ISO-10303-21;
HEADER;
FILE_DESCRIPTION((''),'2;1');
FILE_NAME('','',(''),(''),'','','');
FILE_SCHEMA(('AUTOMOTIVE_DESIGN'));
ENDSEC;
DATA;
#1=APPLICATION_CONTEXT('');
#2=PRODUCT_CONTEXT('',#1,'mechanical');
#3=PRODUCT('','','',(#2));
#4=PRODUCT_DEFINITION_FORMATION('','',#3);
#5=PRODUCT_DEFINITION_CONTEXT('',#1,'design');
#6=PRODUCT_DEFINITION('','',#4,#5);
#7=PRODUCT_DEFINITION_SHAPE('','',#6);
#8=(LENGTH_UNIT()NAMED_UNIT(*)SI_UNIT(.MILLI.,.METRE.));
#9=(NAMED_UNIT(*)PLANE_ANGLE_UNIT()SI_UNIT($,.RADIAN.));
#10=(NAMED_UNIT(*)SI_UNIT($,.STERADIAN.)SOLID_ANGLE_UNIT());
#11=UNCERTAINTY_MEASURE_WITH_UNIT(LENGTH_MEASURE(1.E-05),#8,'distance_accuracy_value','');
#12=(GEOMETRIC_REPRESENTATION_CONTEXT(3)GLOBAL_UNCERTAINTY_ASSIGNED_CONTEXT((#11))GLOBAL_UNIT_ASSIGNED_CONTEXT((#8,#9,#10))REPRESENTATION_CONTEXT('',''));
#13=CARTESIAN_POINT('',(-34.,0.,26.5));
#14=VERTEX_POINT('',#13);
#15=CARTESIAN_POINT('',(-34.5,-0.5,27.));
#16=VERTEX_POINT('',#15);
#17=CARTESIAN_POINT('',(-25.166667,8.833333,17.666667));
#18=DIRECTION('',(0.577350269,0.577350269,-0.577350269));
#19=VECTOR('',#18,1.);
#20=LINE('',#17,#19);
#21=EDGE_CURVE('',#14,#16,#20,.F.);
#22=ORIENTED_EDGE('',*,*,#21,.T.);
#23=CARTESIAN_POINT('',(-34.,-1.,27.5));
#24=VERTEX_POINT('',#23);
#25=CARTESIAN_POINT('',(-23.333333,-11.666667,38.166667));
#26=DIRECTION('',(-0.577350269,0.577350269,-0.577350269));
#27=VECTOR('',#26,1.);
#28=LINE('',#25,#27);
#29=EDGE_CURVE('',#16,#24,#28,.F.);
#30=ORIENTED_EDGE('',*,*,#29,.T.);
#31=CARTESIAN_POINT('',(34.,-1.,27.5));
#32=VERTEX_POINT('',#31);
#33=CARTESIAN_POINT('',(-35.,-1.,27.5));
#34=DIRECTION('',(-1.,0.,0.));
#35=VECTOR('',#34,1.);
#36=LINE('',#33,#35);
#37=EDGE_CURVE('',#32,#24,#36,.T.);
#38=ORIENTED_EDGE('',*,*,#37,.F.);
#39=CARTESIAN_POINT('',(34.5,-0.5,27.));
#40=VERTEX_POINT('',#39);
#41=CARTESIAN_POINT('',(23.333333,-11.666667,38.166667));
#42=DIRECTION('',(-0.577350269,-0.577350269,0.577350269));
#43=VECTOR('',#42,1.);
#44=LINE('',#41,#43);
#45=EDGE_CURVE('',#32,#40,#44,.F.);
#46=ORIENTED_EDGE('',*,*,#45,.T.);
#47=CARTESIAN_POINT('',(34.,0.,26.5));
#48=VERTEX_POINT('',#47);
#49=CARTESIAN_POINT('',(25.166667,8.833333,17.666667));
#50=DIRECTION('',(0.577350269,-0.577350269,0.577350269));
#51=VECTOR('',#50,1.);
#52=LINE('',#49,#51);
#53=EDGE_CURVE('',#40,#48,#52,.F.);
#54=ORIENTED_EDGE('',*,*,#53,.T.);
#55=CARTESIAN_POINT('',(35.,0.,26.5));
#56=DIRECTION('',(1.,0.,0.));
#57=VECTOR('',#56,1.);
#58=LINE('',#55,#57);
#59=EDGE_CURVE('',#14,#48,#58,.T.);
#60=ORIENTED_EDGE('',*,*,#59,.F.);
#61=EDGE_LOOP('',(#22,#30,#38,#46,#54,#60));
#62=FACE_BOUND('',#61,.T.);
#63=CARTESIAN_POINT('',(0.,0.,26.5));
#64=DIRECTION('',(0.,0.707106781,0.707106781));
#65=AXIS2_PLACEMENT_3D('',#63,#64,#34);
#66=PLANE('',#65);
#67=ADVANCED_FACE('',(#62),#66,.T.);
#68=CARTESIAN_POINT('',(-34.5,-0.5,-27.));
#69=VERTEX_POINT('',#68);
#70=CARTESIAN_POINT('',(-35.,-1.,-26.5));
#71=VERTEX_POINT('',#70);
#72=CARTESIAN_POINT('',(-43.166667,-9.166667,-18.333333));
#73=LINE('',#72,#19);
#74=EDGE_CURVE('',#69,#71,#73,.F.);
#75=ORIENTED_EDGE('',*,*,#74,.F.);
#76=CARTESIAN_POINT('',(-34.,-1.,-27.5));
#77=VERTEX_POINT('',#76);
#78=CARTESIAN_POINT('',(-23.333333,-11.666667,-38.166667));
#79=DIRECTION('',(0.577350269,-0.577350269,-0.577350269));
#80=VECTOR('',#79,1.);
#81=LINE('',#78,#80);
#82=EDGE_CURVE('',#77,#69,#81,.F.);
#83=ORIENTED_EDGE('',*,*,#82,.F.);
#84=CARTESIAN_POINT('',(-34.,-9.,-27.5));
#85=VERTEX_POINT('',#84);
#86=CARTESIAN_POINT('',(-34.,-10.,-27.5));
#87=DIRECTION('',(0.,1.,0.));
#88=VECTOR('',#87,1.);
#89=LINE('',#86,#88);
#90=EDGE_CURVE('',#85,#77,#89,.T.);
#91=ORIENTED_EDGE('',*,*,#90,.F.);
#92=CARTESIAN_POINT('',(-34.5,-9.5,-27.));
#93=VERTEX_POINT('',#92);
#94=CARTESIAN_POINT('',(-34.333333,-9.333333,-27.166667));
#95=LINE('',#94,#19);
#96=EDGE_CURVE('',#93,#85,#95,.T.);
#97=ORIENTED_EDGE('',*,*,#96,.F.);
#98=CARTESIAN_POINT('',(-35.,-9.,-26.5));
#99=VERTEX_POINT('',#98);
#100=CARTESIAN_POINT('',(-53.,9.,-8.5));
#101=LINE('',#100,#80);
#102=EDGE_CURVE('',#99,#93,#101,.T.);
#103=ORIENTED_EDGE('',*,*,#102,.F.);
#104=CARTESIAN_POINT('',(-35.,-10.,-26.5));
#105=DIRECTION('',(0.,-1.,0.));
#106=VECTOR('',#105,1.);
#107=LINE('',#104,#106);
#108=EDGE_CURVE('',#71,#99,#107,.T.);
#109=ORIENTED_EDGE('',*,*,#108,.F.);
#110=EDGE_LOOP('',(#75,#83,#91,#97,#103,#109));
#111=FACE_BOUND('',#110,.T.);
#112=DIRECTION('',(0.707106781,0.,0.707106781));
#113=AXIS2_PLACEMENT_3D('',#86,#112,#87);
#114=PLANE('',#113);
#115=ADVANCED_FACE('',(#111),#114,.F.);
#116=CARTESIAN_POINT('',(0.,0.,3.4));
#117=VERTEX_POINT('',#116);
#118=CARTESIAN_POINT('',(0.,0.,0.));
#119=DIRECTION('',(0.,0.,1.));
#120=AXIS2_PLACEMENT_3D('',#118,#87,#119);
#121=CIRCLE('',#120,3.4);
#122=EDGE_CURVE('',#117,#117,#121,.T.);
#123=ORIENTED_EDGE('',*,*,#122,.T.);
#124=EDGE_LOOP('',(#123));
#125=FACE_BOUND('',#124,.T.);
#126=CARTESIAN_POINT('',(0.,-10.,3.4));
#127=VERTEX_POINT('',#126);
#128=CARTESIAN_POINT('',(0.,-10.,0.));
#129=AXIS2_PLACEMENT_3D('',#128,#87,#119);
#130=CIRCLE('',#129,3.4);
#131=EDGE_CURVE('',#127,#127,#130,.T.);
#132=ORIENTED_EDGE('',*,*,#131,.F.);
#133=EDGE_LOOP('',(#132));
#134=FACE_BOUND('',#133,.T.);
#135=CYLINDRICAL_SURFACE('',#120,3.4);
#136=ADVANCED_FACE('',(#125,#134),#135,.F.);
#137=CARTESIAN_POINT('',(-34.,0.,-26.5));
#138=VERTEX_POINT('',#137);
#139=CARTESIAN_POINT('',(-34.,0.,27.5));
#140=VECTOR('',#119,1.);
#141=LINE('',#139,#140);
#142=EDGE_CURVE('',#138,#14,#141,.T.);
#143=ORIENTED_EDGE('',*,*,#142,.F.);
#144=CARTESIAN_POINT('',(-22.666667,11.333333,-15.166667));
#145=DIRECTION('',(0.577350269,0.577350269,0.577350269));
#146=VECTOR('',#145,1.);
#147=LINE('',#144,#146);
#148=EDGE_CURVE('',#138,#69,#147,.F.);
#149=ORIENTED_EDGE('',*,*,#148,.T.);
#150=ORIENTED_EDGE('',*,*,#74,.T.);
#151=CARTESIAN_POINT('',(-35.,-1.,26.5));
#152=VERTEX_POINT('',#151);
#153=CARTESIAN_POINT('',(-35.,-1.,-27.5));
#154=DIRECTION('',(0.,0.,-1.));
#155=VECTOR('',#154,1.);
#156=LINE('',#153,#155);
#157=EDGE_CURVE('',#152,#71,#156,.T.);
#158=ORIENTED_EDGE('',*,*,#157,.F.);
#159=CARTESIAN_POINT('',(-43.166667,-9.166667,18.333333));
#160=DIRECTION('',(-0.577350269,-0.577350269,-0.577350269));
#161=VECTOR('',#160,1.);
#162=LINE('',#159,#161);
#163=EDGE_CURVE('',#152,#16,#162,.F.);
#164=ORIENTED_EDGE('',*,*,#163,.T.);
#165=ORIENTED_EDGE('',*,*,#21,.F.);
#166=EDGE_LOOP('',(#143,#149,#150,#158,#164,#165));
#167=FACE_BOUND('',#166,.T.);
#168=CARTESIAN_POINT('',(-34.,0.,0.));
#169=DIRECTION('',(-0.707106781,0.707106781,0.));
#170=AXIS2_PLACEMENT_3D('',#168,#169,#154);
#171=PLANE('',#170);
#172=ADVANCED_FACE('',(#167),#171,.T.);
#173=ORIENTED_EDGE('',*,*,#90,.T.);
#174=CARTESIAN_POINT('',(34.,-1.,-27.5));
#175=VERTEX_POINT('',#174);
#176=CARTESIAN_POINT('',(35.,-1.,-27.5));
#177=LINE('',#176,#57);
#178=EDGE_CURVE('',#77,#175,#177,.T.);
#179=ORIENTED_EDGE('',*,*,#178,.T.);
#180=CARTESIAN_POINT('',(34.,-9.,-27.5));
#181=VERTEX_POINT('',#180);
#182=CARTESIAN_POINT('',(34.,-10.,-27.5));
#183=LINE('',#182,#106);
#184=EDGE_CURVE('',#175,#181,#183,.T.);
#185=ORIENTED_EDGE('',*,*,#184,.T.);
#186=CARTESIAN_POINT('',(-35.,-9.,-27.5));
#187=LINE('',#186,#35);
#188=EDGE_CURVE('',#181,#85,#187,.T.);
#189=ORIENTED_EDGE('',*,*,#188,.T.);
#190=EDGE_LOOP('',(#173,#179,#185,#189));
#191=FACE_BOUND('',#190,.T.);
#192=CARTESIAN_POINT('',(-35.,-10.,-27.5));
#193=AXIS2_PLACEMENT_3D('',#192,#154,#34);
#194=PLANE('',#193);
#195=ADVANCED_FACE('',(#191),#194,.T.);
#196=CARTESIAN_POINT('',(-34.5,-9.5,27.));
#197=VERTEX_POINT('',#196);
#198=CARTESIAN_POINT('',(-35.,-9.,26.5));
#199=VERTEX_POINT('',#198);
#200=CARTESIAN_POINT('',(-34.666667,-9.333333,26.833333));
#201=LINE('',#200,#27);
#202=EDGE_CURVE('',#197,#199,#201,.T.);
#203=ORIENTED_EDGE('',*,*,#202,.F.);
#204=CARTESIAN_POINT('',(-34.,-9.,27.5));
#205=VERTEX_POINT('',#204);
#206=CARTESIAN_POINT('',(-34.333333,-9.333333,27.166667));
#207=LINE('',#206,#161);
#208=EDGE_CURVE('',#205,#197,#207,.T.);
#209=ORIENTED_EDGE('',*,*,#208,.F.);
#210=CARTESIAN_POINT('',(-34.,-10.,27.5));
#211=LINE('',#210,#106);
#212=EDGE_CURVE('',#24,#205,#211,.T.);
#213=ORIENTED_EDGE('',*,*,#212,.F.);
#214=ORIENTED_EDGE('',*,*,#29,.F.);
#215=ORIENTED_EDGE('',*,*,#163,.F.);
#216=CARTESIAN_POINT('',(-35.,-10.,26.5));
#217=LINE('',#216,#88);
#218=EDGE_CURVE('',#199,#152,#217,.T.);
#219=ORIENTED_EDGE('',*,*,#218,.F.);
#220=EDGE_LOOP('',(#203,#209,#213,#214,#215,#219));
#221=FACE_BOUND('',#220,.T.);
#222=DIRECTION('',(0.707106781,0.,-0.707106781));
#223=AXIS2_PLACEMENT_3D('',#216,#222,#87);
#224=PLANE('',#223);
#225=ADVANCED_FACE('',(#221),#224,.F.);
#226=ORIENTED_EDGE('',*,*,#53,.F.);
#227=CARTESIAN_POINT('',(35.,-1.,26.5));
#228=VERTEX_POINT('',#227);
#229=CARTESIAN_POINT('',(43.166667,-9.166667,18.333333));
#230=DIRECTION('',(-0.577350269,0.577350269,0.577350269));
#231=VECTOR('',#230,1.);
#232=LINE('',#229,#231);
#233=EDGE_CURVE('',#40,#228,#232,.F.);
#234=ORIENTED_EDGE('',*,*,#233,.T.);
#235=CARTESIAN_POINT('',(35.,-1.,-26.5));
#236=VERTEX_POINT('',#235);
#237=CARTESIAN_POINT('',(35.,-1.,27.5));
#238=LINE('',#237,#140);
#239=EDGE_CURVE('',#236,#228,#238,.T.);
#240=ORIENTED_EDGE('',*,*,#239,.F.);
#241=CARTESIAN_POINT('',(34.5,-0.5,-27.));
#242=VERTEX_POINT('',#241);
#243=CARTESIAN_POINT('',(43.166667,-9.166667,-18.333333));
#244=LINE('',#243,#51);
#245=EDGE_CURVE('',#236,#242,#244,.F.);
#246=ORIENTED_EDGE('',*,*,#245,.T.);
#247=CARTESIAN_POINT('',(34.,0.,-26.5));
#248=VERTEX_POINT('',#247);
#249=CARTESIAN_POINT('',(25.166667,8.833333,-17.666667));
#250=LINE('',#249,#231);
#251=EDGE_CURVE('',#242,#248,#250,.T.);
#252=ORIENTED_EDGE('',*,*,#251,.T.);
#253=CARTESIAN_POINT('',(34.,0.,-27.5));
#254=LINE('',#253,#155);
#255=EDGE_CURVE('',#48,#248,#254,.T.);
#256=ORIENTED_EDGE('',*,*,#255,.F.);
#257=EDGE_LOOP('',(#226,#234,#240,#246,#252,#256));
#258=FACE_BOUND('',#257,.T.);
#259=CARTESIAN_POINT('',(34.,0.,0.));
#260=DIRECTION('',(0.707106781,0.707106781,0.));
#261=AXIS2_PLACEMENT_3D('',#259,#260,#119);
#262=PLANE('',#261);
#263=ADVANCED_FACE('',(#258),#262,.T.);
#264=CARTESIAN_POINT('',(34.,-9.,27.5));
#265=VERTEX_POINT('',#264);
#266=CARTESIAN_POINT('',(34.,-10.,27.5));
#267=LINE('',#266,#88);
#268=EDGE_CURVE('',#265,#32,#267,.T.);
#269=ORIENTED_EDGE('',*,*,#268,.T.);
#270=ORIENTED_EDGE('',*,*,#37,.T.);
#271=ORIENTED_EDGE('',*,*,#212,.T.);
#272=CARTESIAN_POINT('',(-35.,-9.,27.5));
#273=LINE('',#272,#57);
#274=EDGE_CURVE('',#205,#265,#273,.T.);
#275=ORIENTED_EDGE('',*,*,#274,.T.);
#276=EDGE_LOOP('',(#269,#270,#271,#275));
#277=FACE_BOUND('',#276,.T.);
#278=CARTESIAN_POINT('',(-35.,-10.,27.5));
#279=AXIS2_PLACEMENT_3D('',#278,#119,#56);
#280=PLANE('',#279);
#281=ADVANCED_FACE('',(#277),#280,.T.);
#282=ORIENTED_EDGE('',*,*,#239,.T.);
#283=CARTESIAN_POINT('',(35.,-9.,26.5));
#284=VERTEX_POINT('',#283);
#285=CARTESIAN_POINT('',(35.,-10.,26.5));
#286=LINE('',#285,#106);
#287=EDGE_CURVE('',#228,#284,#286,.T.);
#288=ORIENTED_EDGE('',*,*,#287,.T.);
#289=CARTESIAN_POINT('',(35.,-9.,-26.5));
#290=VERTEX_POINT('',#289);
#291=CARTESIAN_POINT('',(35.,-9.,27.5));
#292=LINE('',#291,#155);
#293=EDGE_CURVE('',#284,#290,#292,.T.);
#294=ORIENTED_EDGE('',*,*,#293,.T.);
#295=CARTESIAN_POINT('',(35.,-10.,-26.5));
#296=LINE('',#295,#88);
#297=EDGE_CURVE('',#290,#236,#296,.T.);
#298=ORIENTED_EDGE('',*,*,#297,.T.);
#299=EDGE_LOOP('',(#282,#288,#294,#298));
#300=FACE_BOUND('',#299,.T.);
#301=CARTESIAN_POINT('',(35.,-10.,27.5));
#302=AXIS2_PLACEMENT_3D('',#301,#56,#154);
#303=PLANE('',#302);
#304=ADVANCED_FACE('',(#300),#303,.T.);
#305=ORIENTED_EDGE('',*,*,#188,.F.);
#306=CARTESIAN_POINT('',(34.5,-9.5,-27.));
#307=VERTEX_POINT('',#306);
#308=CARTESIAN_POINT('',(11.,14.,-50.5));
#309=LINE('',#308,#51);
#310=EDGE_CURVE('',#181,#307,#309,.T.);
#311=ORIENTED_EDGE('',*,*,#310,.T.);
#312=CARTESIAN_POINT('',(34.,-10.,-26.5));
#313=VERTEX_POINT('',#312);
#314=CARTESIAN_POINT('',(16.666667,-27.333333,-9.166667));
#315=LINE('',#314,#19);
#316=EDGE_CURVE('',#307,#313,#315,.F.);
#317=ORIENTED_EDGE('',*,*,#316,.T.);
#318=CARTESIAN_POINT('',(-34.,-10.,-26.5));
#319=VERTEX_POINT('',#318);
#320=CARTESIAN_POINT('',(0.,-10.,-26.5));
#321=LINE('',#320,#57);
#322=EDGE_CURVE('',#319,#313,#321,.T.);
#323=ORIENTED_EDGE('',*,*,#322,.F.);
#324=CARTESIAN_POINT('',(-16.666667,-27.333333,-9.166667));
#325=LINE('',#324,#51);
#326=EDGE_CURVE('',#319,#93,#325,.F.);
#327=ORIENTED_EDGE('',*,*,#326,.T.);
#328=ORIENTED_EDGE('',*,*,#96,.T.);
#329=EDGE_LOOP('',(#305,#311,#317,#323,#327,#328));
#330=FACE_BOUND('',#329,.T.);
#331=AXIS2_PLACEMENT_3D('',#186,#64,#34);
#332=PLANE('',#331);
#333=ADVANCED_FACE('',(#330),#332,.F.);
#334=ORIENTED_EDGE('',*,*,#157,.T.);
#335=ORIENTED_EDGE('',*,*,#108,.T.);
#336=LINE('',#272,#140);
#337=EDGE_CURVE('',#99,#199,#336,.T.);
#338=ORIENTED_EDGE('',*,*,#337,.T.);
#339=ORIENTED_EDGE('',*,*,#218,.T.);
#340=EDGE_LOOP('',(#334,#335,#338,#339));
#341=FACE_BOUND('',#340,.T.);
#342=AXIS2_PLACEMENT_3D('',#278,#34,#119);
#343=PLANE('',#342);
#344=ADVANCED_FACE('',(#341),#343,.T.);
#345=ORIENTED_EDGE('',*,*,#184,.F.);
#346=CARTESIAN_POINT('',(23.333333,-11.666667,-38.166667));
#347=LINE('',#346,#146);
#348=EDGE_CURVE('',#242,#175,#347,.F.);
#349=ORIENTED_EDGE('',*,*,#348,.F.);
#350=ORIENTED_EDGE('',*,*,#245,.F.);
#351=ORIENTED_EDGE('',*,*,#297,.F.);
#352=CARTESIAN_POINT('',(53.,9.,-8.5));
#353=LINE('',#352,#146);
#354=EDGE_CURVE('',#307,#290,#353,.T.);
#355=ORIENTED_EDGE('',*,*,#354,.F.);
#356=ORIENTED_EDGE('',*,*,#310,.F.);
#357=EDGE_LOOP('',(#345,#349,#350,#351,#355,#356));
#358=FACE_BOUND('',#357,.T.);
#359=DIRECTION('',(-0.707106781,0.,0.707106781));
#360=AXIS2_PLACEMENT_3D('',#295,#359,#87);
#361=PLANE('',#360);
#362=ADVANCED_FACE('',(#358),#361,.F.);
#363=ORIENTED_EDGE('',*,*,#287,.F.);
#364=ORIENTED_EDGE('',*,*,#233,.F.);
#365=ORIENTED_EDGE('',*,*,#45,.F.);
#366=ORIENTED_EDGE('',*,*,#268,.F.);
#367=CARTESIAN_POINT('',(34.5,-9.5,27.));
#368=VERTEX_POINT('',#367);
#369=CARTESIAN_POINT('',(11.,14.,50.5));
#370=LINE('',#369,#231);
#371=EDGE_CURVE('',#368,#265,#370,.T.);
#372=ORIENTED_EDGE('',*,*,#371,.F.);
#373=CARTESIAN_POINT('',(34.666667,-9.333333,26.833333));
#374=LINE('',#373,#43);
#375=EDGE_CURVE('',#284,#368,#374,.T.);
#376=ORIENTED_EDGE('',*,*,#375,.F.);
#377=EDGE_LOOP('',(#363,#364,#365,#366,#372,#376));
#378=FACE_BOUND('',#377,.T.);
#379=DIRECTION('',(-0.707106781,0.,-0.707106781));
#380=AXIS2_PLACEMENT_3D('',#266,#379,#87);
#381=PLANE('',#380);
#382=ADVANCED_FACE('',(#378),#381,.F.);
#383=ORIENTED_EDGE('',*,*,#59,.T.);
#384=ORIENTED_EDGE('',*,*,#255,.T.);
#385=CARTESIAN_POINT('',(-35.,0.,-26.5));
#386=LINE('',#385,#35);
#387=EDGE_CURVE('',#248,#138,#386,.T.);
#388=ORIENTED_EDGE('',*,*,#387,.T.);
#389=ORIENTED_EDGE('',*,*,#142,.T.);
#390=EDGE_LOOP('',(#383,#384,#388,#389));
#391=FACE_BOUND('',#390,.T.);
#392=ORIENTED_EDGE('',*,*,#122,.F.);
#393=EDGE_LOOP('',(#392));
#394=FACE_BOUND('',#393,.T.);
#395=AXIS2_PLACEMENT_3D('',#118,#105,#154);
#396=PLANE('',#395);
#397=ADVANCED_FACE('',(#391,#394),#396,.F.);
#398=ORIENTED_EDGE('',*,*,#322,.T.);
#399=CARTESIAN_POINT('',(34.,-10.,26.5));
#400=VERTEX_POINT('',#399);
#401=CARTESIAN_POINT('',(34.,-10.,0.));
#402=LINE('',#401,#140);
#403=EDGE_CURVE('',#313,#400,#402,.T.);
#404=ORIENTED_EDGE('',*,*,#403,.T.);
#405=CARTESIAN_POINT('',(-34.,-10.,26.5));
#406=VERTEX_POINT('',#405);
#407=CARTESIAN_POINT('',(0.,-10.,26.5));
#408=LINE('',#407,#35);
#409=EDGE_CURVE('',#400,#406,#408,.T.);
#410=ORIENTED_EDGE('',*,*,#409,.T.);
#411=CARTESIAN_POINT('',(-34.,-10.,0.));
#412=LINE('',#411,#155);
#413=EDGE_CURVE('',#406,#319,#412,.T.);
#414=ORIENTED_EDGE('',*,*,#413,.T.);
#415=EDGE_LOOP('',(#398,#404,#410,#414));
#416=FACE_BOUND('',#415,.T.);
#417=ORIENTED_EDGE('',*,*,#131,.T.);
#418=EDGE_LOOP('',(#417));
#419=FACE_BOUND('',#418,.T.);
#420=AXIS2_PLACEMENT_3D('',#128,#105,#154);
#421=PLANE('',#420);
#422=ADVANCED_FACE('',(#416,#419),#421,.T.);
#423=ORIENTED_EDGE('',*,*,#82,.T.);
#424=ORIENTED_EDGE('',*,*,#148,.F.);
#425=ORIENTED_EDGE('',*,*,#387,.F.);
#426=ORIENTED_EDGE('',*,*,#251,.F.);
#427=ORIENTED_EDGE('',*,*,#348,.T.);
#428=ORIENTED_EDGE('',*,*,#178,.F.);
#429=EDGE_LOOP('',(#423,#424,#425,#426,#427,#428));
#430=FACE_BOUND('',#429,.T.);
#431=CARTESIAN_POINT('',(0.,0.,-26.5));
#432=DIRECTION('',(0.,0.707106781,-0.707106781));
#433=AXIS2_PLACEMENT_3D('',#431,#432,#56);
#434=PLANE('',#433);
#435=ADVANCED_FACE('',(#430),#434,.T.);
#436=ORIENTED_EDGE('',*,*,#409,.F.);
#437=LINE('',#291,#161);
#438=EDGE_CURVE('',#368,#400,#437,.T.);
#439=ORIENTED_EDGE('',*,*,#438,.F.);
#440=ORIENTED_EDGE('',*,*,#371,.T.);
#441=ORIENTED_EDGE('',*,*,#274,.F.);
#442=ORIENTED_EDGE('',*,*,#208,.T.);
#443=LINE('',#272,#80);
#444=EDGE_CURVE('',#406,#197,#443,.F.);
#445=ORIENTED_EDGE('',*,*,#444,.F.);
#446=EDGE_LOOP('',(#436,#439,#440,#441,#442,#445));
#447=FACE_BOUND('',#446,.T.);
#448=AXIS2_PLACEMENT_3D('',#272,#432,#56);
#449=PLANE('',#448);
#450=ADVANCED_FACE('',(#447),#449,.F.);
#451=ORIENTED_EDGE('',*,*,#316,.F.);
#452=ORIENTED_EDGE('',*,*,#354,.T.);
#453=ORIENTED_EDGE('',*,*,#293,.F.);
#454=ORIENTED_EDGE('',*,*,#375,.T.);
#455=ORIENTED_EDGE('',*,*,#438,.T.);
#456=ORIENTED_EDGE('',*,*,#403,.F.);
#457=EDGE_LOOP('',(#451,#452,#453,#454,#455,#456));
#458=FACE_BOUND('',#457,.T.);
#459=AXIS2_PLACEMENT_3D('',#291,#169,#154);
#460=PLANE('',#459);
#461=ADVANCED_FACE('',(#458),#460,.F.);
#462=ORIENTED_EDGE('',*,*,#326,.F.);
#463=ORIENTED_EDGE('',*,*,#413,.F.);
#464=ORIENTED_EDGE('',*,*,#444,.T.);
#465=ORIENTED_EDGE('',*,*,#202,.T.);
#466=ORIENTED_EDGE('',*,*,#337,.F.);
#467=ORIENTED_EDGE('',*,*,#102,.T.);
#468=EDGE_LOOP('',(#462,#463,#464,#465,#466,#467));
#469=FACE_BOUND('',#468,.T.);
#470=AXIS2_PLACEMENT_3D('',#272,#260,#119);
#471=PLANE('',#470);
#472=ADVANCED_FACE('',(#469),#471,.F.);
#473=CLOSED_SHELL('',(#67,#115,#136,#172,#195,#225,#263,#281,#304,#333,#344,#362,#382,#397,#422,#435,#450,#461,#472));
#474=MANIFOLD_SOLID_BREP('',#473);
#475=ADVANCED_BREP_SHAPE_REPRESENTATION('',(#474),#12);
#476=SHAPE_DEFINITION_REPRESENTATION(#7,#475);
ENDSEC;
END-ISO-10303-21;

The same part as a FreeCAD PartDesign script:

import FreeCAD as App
import Part
import Sketcher

V = App.Vector


def edges_at(feature, points):
    """Names of the edges that pass closest to the given points."""
    edges = feature.Shape.Edges
    near = lambda p: min(range(len(edges)), key=lambda i: edges[i].distToShape(Part.Vertex(*p))[0])
    return sorted({f"Edge{near(p) + 1}" for p in points})


def add_polygon(sketch, points):
    """Adds a closed chain of lines whose ends are joined by coincident constraints."""
    first, n = sketch.GeometryCount, len(points)
    for a, b in zip(points, points[1:] + points[:1]):
        sketch.addGeometry(Part.LineSegment(App.Vector(*a, 0), App.Vector(*b, 0)), False)
    for i in range(n):
        sketch.addConstraint(Sketcher.Constraint("Coincident", first + i, 2, first + (i + 1) % n, 1))

doc = App.newDocument("Part")
params = doc.addObject("Spreadsheet::Sheet", "Params")
for row, (alias, value) in enumerate([
    ("sketch1_width", "70 mm"),
    ("sketch1_height", "55 mm"),
    ("pad1_length", "10 mm"),
    ("chamfer_size", "1 mm"),
    ("sketch2_diameter", "6.8 mm"),
    ("hole_diameter", "6.8 mm"),
    ("chamfer2_size", "1 mm"),
], start=1):
    params.set(f"A{row}", alias)
    params.set(f"B{row}", "=" + value)
    params.setAlias(f"B{row}", alias)

body = doc.addObject("PartDesign::Body", "Body")

# Sketch on XZ plane
sketch1 = doc.addObject("Sketcher::SketchObject", "Sketch")
body.addObject(sketch1)
sketch1.AttachmentSupport = (doc.XZ_Plane, [""])
sketch1.MapMode = "FlatFace"
add_polygon(sketch1, [(-35, -27.5), (-35, 27.5), (35, 27.5), (35, -27.5)])  # lines 0-3
sketch1.addConstraint([
    Sketcher.Constraint("Vertical", 0),
    Sketcher.Constraint("Horizontal", 1),
    Sketcher.Constraint("Vertical", 2),
    Sketcher.Constraint("Horizontal", 3),
    Sketcher.Constraint("Symmetric", 0, 2, 2, 2, -1, 1),
    Sketcher.Constraint("DistanceX", 1, 1, 1, 2, 70.0),
    Sketcher.Constraint("DistanceY", 0, 1, 0, 2, 55.0),
])
sketch1.setExpression("Constraints[9]", "Params.sketch1_width")
sketch1.setExpression("Constraints[10]", "Params.sketch1_height")
pad1 = doc.addObject("PartDesign::Pad", "Pad")
body.addObject(pad1)
pad1.Profile = sketch1
pad1.setExpression("Length", "Params.pad1_length")
doc.recompute()

chamfer = doc.addObject("PartDesign::Chamfer", "Chamfer")
body.addObject(chamfer)
chamfer.Base = (pad1, edges_at(pad1, [
    (-35, -10, 0),
    (0, -10, 27.5),
    (35, -10, 0),
    (0, 0, 27.5),
    (-35, 0, 0),
    (0, 0, -27.5),
    (35, 0, 0),
    (0, -10, -27.5),
]))
chamfer.setExpression("Size", "Params.chamfer_size")

# Sketch on XZ plane
sketch2 = doc.addObject("Sketcher::SketchObject", "Sketch001")
body.addObject(sketch2)
sketch2.AttachmentSupport = (doc.XZ_Plane, [""])
sketch2.MapMode = "FlatFace"
sketch2.addGeometry(Part.Circle(V(0, 0, 0), V(0, 0, 1), 3.4), False)
sketch2.addConstraint([
    Sketcher.Constraint("Coincident", 0, 3, -1, 1),
    Sketcher.Constraint("Diameter", 0, 6.8),
])
sketch2.setExpression("Constraints[1]", "Params.sketch2_diameter")
doc.recompute()
hole = doc.addObject("PartDesign::Hole", "Hole")
body.addObject(hole)
hole.Profile = sketch2
hole.ThreadType = "None"
hole.setExpression("Diameter", "Params.hole_diameter")
hole.DepthType = "ThroughAll"
hole.Reversed = True
doc.recompute()

chamfer2 = doc.addObject("PartDesign::Chamfer", "Chamfer001")
body.addObject(chamfer2)
chamfer2.Base = (hole, edges_at(hole, [
    (35, -5, -27.5),
    (-35, -5, -27.5),
    (-35, -5, 27.5),
    (35, -5, 27.5),
]))
chamfer2.setExpression("Size", "Params.chamfer2_size")

doc.recompute()
